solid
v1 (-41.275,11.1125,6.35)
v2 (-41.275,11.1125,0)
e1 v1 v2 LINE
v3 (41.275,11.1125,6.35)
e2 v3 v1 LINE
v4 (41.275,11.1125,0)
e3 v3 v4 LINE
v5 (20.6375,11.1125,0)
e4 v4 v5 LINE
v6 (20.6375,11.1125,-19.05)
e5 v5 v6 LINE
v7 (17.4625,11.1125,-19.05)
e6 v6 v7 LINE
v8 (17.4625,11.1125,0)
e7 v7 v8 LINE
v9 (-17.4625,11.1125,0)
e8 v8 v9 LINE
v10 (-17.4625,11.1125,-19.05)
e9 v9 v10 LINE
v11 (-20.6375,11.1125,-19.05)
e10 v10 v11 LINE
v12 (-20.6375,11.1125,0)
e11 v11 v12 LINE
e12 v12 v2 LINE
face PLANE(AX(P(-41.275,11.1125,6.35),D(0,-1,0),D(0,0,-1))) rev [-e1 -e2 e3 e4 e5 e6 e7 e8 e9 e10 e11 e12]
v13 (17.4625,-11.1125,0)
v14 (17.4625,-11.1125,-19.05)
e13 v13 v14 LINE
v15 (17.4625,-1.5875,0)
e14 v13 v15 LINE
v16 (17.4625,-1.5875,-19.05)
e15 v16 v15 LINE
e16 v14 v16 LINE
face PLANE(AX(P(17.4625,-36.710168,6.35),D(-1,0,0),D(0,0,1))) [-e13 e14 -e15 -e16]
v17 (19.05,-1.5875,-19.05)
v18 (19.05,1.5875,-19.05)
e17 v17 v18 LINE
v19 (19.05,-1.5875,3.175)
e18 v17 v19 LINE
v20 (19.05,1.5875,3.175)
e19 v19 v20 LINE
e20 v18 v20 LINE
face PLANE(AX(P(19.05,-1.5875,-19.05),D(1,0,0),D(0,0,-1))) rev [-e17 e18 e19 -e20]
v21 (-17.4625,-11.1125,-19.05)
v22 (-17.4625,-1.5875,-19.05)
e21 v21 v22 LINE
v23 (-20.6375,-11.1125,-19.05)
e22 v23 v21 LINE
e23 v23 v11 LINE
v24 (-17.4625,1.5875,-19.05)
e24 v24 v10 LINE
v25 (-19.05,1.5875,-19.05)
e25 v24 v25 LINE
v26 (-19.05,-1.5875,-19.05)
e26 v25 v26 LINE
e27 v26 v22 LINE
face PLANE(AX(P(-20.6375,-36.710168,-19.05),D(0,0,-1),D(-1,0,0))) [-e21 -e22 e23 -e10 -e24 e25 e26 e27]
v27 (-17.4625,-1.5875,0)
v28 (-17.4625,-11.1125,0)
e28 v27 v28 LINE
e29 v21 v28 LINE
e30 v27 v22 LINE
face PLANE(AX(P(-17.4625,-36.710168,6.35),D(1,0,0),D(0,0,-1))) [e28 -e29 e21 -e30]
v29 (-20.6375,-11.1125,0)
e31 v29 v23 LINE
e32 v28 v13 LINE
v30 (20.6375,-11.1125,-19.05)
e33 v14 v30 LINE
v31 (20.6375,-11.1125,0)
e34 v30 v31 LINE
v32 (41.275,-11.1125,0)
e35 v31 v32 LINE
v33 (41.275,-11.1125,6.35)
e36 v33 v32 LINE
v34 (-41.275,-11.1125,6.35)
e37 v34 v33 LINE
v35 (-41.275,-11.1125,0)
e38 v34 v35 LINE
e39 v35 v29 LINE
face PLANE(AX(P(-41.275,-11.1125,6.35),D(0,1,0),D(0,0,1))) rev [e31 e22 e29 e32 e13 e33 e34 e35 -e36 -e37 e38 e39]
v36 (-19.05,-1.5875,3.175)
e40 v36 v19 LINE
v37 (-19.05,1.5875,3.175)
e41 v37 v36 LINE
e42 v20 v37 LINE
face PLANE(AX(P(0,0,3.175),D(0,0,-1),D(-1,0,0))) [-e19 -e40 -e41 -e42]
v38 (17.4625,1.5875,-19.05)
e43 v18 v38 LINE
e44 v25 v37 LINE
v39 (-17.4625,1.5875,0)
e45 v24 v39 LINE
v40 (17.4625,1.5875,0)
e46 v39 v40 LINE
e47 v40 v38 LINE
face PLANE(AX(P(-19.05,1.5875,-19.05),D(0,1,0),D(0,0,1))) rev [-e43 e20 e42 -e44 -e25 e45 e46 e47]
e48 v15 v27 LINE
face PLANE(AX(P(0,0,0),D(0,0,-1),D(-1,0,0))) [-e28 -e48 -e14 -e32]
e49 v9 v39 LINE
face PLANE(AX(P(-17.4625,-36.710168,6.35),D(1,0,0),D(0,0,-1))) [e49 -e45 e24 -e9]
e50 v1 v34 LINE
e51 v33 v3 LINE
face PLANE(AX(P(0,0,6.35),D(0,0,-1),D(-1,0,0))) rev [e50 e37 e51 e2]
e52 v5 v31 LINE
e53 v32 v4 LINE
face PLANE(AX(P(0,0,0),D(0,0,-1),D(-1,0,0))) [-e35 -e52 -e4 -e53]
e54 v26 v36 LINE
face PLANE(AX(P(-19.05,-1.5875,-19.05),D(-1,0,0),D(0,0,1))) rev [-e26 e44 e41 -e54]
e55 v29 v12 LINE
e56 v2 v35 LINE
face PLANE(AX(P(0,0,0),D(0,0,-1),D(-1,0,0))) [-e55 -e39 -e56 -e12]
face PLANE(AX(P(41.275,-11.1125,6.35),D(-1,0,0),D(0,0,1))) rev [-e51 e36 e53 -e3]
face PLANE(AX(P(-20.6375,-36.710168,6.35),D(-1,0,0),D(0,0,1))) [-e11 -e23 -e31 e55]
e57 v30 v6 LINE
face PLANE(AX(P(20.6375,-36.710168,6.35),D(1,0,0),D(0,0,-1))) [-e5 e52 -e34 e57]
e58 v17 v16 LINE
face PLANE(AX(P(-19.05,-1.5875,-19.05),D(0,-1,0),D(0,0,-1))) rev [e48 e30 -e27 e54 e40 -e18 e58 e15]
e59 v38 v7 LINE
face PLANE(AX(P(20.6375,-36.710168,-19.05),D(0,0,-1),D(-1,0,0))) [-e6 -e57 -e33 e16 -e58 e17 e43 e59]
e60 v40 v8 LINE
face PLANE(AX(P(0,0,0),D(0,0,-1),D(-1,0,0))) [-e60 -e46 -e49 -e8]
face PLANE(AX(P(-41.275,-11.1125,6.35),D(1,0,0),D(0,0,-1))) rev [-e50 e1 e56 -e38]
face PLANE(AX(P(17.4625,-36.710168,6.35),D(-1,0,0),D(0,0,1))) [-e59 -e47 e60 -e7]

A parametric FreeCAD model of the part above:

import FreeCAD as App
import Part
import Sketcher
from FreeCAD import Vector
Q = App.Units.Quantity

doc = App.newDocument("Part")
body = doc.addObject("PartDesign::Body", "Body")

sketch1 = doc.addObject("Sketcher::SketchObject", "Sketch")
body.addObject(sketch1)
sketch1.AttachmentSupport = (doc.XY_Plane, [""])
sketch1.MapMode = "FlatFace"
sketch1.addGeometry(Part.LineSegment(Vector(-41, 11, 0), Vector(-41, -11, 0)), False)
sketch1.addGeometry(Part.LineSegment(Vector(-41, -11, 0), Vector(41, -11, 0)), False)
sketch1.addGeometry(Part.LineSegment(Vector(41, -11, 0), Vector(41, 11, 0)), False)
sketch1.addGeometry(Part.LineSegment(Vector(41, 11, 0), Vector(-41, 11, 0)), False)
sketch1.addConstraint(Sketcher.Constraint("Coincident", 0, 2, 1, 1))
sketch1.addConstraint(Sketcher.Constraint("Coincident", 1, 2, 2, 1))
sketch1.addConstraint(Sketcher.Constraint("Coincident", 2, 2, 3, 1))
sketch1.addConstraint(Sketcher.Constraint("Coincident", 3, 2, 0, 1))
sketch1.addConstraint(Sketcher.Constraint("Vertical", 0))
sketch1.addConstraint(Sketcher.Constraint("Horizontal", 1))
sketch1.addConstraint(Sketcher.Constraint("Vertical", 2))
sketch1.addConstraint(Sketcher.Constraint("Horizontal", 3))
sketch1.addConstraint(Sketcher.Constraint("Symmetric", 0, 2, 2, 2, -1, 1))
sketch1.addConstraint(Sketcher.Constraint("DistanceX", 1, 1, 1, 2, Q("3.25 in")))
sketch1.addConstraint(Sketcher.Constraint("DistanceY", 0, 2, 0, 1, Q("0.875 in")))
pad1 = doc.addObject("PartDesign::Pad", "Pad")
body.addObject(pad1)
pad1.Profile = sketch1
pad1.Length = Q("0.25 in")

sketch2 = doc.addObject("Sketcher::SketchObject", "Sketch001")
body.addObject(sketch2)
sketch2.AttachmentSupport = (doc.XZ_Plane, [""])
sketch2.MapMode = "FlatFace"
sketch2.AttachmentOffset = App.Placement(Vector(0, 0, -0.4375 * 25.4), App.Rotation())
sketch2.addGeometry(Part.LineSegment(Vector(-20.6, -19.1, 0), Vector(-20.6, 6.3, 0)), False)
sketch2.addGeometry(Part.LineSegment(Vector(-20.6, 6.3, 0), Vector(-17.5, 6.3, 0)), False)
sketch2.addGeometry(Part.LineSegment(Vector(-17.5, 6.3, 0), Vector(-17.5, -19.1, 0)), False)
sketch2.addGeometry(Part.LineSegment(Vector(-17.5, -19.1, 0), Vector(-20.6, -19.1, 0)), False)
sketch2.addGeometry(Part.LineSegment(Vector(17.5, -19.1, 0), Vector(17.5, 6.3, 0)), False)
sketch2.addGeometry(Part.LineSegment(Vector(17.5, 6.3, 0), Vector(20.6, 6.3, 0)), False)
sketch2.addGeometry(Part.LineSegment(Vector(20.6, 6.3, 0), Vector(20.6, -19.1, 0)), False)
sketch2.addGeometry(Part.LineSegment(Vector(20.6, -19.1, 0), Vector(17.5, -19.1, 0)), False)
sketch2.addConstraint(Sketcher.Constraint("Coincident", 0, 2, 1, 1))
sketch2.addConstraint(Sketcher.Constraint("Coincident", 1, 2, 2, 1))
sketch2.addConstraint(Sketcher.Constraint("Coincident", 2, 2, 3, 1))
sketch2.addConstraint(Sketcher.Constraint("Coincident", 3, 2, 0, 1))
sketch2.addConstraint(Sketcher.Constraint("Coincident", 4, 2, 5, 1))
sketch2.addConstraint(Sketcher.Constraint("Coincident", 5, 2, 6, 1))
sketch2.addConstraint(Sketcher.Constraint("Coincident", 6, 2, 7, 1))
sketch2.addConstraint(Sketcher.Constraint("Coincident", 7, 2, 4, 1))
sketch2.addConstraint(Sketcher.Constraint("Vertical", 0))
sketch2.addConstraint(Sketcher.Constraint("Horizontal", 1))
sketch2.addConstraint(Sketcher.Constraint("Vertical", 2))
sketch2.addConstraint(Sketcher.Constraint("Horizontal", 3))
sketch2.addConstraint(Sketcher.Constraint("Vertical", 4))
sketch2.addConstraint(Sketcher.Constraint("Horizontal", 5))
sketch2.addConstraint(Sketcher.Constraint("Vertical", 6))
sketch2.addConstraint(Sketcher.Constraint("Horizontal", 7))
sketch2.addConstraint(Sketcher.Constraint("Symmetric", 1, 2, 4, 2, -2))
sketch2.addConstraint(Sketcher.Constraint("Symmetric", 3, 2, 6, 2, -2))
sketch2.addConstraint(Sketcher.Constraint("DistanceY", 0, 1, 0, 2, Q("1 in")))
sketch2.addConstraint(Sketcher.Constraint("DistanceX", 0, 2, 4, 2, Q("1.5 in")))
sketch2.addConstraint(Sketcher.Constraint("DistanceX", 1, 1, 1, 2, Q("0.125 in")))
sketch2.addConstraint(Sketcher.Constraint("DistanceY", -1, 1, 0, 2, Q("0.25 in")))
pad2 = doc.addObject("PartDesign::Pad", "Pad001")
body.addObject(pad2)
pad2.Profile = sketch2
pad2.Length = Q("0.875 in")

sketch3 = doc.addObject("Sketcher::SketchObject", "Sketch002")
body.addObject(sketch3)
sketch3.AttachmentSupport = (doc.XY_Plane, [""])
sketch3.MapMode = "FlatFace"
sketch3.AttachmentOffset = App.Placement(Vector(0, 0, 0.125 * 25.4), App.Rotation())
sketch3.addGeometry(Part.LineSegment(Vector(-19.1, 1.6, 0), Vector(-19.1, -1.6, 0)), False)
sketch3.addGeometry(Part.LineSegment(Vector(-19.1, -1.6, 0), Vector(19.1, -1.6, 0)), False)
sketch3.addGeometry(Part.LineSegment(Vector(19.1, -1.6, 0), Vector(19.1, 1.6, 0)), False)
sketch3.addGeometry(Part.LineSegment(Vector(19.1, 1.6, 0), Vector(-19.1, 1.6, 0)), False)
sketch3.addConstraint(Sketcher.Constraint("Coincident", 0, 2, 1, 1))
sketch3.addConstraint(Sketcher.Constraint("Coincident", 1, 2, 2, 1))
sketch3.addConstraint(Sketcher.Constraint("Coincident", 2, 2, 3, 1))
sketch3.addConstraint(Sketcher.Constraint("Coincident", 3, 2, 0, 1))
sketch3.addConstraint(Sketcher.Constraint("Vertical", 0))
sketch3.addConstraint(Sketcher.Constraint("Horizontal", 1))
sketch3.addConstraint(Sketcher.Constraint("Vertical", 2))
sketch3.addConstraint(Sketcher.Constraint("Horizontal", 3))
sketch3.addConstraint(Sketcher.Constraint("Symmetric", 0, 2, 2, 2, -1, 1))
sketch3.addConstraint(Sketcher.Constraint("DistanceX", 1, 1, 1, 2, Q("1.5 in")))
sketch3.addConstraint(Sketcher.Constraint("DistanceY", 0, 2, 0, 1, Q("0.125 in")))
pocket1 = doc.addObject("PartDesign::Pocket", "Pocket")
body.addObject(pocket1)
pocket1.Profile = sketch3
pocket1.Type = "ThroughAll"

doc.recompute()
